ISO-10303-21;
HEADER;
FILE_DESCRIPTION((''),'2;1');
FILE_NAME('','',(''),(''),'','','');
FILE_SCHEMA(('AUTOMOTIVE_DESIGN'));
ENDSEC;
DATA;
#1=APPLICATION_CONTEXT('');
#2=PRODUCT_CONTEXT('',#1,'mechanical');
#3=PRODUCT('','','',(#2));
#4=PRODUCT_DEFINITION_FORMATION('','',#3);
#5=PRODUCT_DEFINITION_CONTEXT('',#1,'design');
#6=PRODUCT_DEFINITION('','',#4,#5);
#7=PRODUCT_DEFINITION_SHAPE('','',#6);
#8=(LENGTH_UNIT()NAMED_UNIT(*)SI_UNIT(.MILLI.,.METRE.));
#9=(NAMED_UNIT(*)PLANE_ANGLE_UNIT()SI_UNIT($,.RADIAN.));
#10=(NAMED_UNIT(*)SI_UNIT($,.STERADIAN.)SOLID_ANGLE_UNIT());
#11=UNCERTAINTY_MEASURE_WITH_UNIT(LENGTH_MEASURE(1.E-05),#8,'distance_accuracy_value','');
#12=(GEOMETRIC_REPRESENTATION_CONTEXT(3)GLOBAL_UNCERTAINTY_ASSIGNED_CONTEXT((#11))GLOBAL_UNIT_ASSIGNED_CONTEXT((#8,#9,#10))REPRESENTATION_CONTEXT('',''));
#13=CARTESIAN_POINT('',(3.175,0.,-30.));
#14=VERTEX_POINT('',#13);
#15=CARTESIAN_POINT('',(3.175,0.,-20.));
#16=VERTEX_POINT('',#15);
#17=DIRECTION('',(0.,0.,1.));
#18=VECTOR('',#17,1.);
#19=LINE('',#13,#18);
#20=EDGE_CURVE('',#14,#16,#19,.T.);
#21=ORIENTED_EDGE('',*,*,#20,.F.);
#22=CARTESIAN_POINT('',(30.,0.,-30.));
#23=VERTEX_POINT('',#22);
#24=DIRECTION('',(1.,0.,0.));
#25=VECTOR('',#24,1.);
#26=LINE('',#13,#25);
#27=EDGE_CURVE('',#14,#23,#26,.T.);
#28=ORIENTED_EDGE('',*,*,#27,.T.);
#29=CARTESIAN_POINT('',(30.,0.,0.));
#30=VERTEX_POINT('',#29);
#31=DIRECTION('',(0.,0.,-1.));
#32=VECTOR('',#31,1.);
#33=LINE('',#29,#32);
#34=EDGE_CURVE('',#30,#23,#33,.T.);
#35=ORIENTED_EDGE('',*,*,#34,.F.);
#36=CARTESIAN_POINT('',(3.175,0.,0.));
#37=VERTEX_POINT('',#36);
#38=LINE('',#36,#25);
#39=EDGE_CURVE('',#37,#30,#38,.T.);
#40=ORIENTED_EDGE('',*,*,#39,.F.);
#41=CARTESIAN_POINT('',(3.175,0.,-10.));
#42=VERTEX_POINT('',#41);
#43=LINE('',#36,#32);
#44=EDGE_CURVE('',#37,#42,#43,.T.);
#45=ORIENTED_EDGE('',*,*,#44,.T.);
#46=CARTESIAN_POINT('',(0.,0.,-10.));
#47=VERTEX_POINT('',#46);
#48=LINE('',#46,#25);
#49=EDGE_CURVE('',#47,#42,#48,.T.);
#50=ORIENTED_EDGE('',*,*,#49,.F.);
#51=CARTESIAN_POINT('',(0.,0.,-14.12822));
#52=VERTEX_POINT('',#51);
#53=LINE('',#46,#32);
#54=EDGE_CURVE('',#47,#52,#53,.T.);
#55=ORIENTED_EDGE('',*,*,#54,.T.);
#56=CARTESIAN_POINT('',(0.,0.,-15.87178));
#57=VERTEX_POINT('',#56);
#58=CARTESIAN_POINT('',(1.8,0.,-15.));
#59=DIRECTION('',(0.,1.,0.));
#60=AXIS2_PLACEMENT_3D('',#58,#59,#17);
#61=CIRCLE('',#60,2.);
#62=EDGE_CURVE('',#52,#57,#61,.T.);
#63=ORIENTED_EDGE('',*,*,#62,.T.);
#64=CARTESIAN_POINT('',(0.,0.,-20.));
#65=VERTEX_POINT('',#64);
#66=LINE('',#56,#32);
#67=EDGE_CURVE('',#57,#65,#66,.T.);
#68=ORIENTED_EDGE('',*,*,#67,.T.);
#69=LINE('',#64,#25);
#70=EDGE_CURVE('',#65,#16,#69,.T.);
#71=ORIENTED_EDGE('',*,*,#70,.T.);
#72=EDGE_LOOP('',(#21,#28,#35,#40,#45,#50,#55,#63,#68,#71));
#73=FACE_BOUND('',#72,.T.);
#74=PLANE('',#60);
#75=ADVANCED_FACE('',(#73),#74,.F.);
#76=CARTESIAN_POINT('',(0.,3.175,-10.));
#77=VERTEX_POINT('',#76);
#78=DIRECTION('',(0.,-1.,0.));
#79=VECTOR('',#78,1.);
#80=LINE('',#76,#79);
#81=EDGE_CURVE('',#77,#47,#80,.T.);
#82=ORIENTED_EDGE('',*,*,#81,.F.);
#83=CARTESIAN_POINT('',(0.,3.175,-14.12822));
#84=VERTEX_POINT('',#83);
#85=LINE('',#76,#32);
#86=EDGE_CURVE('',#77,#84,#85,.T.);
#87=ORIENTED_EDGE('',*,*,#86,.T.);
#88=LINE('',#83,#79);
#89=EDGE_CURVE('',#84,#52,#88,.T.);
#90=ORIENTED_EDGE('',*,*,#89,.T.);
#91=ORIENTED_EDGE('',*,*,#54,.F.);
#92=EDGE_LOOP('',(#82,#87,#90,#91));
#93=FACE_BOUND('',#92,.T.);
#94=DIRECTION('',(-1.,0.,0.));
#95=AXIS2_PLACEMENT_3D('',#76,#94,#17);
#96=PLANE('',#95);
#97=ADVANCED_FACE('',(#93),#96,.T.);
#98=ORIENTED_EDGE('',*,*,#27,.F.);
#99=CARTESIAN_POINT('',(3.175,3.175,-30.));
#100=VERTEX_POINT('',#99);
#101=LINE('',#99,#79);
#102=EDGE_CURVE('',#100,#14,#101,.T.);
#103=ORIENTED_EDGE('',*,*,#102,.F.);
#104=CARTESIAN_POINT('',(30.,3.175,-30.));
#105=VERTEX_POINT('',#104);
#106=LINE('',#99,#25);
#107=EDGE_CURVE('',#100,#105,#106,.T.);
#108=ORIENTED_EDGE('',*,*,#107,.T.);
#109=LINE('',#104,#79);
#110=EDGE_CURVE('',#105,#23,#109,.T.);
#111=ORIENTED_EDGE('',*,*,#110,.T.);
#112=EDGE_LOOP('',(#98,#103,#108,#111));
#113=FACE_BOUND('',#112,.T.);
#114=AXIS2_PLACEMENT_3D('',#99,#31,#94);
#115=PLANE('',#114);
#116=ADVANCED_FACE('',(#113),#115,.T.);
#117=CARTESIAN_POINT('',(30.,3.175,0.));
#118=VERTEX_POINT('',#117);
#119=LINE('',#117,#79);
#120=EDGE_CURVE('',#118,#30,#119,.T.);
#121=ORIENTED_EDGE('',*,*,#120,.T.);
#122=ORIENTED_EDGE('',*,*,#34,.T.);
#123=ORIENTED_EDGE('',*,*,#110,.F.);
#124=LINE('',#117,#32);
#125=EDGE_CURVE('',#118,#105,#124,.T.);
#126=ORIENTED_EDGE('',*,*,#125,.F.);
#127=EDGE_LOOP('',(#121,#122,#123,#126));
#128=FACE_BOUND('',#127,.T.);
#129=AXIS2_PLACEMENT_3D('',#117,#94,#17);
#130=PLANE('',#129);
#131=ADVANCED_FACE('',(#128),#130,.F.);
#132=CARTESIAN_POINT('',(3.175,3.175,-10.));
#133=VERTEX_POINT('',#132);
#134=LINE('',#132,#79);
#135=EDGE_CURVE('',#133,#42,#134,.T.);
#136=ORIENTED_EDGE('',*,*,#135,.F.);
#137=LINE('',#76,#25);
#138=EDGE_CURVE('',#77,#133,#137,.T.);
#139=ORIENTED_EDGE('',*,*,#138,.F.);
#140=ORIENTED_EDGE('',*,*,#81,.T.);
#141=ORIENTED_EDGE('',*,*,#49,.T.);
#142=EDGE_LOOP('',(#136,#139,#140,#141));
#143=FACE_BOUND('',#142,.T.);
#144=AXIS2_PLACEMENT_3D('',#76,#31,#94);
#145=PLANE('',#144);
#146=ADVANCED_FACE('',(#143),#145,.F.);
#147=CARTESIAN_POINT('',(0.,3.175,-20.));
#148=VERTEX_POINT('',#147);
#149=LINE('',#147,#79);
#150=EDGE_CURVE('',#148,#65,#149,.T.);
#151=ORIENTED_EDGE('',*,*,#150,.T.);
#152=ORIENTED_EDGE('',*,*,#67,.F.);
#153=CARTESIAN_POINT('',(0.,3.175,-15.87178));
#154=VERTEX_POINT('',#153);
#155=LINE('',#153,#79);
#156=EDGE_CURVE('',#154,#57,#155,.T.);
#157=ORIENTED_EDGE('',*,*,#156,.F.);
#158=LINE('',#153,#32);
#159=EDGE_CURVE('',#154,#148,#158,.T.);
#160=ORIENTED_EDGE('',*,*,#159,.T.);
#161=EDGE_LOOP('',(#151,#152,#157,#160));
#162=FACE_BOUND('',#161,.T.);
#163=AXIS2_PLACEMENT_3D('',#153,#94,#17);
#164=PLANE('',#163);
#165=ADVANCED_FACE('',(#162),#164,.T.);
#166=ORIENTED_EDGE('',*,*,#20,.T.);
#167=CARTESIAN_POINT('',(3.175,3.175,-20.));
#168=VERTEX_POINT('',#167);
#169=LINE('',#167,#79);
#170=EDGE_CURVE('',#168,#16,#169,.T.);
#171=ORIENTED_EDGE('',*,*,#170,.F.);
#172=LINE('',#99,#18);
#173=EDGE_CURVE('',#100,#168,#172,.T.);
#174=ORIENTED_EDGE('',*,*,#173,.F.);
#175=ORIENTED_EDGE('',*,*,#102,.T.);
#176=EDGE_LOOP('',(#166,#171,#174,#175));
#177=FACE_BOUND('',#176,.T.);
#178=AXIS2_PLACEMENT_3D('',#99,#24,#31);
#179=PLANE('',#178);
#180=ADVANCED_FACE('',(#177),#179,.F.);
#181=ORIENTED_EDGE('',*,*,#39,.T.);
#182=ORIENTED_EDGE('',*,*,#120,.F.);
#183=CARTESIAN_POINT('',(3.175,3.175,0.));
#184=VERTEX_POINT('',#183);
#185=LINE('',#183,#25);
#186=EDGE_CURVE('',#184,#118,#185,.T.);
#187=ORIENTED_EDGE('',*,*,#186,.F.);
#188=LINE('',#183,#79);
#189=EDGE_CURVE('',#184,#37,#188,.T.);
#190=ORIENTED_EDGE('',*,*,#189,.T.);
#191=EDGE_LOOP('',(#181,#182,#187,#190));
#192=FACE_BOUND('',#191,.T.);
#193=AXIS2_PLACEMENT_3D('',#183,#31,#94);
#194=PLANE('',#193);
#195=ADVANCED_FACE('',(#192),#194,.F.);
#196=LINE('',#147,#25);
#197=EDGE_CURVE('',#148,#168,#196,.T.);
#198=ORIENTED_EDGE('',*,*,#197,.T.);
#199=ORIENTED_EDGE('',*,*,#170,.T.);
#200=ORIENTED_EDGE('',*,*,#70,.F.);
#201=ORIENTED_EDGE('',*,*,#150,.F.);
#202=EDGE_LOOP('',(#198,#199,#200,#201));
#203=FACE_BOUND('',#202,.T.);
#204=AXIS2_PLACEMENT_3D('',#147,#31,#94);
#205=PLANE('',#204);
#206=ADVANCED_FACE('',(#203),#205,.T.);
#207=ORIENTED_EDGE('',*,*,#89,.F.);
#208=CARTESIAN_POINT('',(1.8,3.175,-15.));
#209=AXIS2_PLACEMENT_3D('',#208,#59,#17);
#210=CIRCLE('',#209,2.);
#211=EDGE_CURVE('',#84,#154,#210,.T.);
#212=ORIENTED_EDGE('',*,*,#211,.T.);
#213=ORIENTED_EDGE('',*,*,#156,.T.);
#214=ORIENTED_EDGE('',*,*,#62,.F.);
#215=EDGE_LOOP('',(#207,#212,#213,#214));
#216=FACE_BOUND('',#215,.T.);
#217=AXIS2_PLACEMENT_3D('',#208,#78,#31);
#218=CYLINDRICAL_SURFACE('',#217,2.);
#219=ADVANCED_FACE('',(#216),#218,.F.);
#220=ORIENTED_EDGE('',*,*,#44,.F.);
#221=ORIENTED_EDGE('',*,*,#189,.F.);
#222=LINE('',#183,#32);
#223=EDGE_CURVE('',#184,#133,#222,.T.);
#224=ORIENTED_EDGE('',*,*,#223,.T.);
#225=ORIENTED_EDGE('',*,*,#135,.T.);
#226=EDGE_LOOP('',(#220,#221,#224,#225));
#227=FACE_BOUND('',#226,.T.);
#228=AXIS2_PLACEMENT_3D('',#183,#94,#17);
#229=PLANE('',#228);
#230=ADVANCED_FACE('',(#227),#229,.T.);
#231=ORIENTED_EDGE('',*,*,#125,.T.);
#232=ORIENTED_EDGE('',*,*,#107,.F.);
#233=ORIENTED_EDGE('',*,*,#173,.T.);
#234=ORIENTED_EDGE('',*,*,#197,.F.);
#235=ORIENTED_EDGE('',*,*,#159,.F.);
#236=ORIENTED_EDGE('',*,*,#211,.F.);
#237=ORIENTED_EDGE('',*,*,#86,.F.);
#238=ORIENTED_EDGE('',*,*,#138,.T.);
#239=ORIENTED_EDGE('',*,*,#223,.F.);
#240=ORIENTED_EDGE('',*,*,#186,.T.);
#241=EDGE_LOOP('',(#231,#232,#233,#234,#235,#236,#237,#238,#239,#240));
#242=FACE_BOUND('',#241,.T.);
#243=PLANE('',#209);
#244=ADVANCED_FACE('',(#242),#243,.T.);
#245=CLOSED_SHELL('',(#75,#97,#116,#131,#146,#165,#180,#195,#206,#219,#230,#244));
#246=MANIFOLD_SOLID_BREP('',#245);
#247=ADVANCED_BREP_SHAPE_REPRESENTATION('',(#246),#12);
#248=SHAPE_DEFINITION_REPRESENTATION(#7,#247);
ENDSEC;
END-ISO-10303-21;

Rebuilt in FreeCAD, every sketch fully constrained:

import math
import FreeCAD as App
import Part
import Sketcher

V = App.Vector

doc = App.newDocument("Part")
body = doc.addObject("PartDesign::Body", "Body")

# Sketch on XZ plane
sketch1 = body.newObject("Sketcher::SketchObject", "Sketch")
sketch1.AttachmentSupport = (doc.getObject("XZ_Plane"), [""])
sketch1.MapMode = "FlatFace"
sketch1.addGeometry([
    Part.LineSegment(V(0, -20, 0), V(0, -15.9, 0)),  # 0
    Part.ArcOfCircle(Part.Circle(V(1.8, -15, 0), V(0, 0, 1), 2), math.radians(-154), math.radians(154)),  # 1
    Part.LineSegment(V(0, -14.1, 0), V(0, -10, 0)),  # 2
    Part.LineSegment(V(0, -10, 0), V(3.2, -10, 0)),  # 3
    Part.LineSegment(V(3.2, -10, 0), V(3.2, 0, 0)),  # 4
    Part.LineSegment(V(3.2, 0, 0), V(30, 0, 0)),  # 5
    Part.LineSegment(V(30, 0, 0), V(30, -30, 0)),  # 6
    Part.LineSegment(V(30, -30, 0), V(3.2, -30, 0)),  # 7
    Part.LineSegment(V(3.2, -30, 0), V(3.2, -20, 0)),  # 8
    Part.LineSegment(V(3.2, -20, 0), V(0, -20, 0)),  # 9
], False)
sketch1.addConstraint([
    Sketcher.Constraint("Coincident", 0, 2, 1, 1),
    Sketcher.Constraint("Coincident", 1, 2, 2, 1),
    Sketcher.Constraint("Coincident", 2, 2, 3, 1),
    Sketcher.Constraint("Coincident", 3, 2, 4, 1),
    Sketcher.Constraint("Coincident", 4, 2, 5, 1),
    Sketcher.Constraint("Coincident", 5, 2, 6, 1),
    Sketcher.Constraint("Coincident", 6, 2, 7, 1),
    Sketcher.Constraint("Coincident", 7, 2, 8, 1),
    Sketcher.Constraint("Coincident", 8, 2, 9, 1),
    Sketcher.Constraint("Coincident", 9, 2, 0, 1),
    Sketcher.Constraint("Vertical", 0),
    Sketcher.Constraint("Vertical", 2),
    Sketcher.Constraint("Horizontal", 3),
    Sketcher.Constraint("Vertical", 4),
    Sketcher.Constraint("Horizontal", 5),
    Sketcher.Constraint("Vertical", 6),
    Sketcher.Constraint("Horizontal", 7),
    Sketcher.Constraint("Vertical", 8),
    Sketcher.Constraint("Horizontal", 9),
    Sketcher.Constraint("PointOnObject", 0, 2, -2),
    Sketcher.Constraint("PointOnObject", 1, 2, -2),
    Sketcher.Constraint("PointOnObject", 4, 2, -1),
    Sketcher.Constraint("Vertical", 4, 2, 7, 2),
    Sketcher.Constraint("Equal", 0, 2),
    Sketcher.Constraint("Equal", 4, 8),
    Sketcher.Constraint("Radius", 1, 2.0),
    Sketcher.Constraint("DistanceY", 4, 1, 4, 2, 10.0),
    Sketcher.Constraint("DistanceY", 6, 2, 6, 1, 30.0),
    Sketcher.Constraint("DistanceX", -1, 1, 5, 2, 30.0),
    Sketcher.Constraint("DistanceX", -1, 1, 1, 3, 1.8),
    Sketcher.Constraint("DistanceX", 3, 1, 3, 2, 3.175),
])
pad1 = body.newObject("PartDesign::Pad", "Pad")
pad1.Profile = sketch1
pad1.Length = 3.175
pad1.Reversed = True

doc.recompute()
